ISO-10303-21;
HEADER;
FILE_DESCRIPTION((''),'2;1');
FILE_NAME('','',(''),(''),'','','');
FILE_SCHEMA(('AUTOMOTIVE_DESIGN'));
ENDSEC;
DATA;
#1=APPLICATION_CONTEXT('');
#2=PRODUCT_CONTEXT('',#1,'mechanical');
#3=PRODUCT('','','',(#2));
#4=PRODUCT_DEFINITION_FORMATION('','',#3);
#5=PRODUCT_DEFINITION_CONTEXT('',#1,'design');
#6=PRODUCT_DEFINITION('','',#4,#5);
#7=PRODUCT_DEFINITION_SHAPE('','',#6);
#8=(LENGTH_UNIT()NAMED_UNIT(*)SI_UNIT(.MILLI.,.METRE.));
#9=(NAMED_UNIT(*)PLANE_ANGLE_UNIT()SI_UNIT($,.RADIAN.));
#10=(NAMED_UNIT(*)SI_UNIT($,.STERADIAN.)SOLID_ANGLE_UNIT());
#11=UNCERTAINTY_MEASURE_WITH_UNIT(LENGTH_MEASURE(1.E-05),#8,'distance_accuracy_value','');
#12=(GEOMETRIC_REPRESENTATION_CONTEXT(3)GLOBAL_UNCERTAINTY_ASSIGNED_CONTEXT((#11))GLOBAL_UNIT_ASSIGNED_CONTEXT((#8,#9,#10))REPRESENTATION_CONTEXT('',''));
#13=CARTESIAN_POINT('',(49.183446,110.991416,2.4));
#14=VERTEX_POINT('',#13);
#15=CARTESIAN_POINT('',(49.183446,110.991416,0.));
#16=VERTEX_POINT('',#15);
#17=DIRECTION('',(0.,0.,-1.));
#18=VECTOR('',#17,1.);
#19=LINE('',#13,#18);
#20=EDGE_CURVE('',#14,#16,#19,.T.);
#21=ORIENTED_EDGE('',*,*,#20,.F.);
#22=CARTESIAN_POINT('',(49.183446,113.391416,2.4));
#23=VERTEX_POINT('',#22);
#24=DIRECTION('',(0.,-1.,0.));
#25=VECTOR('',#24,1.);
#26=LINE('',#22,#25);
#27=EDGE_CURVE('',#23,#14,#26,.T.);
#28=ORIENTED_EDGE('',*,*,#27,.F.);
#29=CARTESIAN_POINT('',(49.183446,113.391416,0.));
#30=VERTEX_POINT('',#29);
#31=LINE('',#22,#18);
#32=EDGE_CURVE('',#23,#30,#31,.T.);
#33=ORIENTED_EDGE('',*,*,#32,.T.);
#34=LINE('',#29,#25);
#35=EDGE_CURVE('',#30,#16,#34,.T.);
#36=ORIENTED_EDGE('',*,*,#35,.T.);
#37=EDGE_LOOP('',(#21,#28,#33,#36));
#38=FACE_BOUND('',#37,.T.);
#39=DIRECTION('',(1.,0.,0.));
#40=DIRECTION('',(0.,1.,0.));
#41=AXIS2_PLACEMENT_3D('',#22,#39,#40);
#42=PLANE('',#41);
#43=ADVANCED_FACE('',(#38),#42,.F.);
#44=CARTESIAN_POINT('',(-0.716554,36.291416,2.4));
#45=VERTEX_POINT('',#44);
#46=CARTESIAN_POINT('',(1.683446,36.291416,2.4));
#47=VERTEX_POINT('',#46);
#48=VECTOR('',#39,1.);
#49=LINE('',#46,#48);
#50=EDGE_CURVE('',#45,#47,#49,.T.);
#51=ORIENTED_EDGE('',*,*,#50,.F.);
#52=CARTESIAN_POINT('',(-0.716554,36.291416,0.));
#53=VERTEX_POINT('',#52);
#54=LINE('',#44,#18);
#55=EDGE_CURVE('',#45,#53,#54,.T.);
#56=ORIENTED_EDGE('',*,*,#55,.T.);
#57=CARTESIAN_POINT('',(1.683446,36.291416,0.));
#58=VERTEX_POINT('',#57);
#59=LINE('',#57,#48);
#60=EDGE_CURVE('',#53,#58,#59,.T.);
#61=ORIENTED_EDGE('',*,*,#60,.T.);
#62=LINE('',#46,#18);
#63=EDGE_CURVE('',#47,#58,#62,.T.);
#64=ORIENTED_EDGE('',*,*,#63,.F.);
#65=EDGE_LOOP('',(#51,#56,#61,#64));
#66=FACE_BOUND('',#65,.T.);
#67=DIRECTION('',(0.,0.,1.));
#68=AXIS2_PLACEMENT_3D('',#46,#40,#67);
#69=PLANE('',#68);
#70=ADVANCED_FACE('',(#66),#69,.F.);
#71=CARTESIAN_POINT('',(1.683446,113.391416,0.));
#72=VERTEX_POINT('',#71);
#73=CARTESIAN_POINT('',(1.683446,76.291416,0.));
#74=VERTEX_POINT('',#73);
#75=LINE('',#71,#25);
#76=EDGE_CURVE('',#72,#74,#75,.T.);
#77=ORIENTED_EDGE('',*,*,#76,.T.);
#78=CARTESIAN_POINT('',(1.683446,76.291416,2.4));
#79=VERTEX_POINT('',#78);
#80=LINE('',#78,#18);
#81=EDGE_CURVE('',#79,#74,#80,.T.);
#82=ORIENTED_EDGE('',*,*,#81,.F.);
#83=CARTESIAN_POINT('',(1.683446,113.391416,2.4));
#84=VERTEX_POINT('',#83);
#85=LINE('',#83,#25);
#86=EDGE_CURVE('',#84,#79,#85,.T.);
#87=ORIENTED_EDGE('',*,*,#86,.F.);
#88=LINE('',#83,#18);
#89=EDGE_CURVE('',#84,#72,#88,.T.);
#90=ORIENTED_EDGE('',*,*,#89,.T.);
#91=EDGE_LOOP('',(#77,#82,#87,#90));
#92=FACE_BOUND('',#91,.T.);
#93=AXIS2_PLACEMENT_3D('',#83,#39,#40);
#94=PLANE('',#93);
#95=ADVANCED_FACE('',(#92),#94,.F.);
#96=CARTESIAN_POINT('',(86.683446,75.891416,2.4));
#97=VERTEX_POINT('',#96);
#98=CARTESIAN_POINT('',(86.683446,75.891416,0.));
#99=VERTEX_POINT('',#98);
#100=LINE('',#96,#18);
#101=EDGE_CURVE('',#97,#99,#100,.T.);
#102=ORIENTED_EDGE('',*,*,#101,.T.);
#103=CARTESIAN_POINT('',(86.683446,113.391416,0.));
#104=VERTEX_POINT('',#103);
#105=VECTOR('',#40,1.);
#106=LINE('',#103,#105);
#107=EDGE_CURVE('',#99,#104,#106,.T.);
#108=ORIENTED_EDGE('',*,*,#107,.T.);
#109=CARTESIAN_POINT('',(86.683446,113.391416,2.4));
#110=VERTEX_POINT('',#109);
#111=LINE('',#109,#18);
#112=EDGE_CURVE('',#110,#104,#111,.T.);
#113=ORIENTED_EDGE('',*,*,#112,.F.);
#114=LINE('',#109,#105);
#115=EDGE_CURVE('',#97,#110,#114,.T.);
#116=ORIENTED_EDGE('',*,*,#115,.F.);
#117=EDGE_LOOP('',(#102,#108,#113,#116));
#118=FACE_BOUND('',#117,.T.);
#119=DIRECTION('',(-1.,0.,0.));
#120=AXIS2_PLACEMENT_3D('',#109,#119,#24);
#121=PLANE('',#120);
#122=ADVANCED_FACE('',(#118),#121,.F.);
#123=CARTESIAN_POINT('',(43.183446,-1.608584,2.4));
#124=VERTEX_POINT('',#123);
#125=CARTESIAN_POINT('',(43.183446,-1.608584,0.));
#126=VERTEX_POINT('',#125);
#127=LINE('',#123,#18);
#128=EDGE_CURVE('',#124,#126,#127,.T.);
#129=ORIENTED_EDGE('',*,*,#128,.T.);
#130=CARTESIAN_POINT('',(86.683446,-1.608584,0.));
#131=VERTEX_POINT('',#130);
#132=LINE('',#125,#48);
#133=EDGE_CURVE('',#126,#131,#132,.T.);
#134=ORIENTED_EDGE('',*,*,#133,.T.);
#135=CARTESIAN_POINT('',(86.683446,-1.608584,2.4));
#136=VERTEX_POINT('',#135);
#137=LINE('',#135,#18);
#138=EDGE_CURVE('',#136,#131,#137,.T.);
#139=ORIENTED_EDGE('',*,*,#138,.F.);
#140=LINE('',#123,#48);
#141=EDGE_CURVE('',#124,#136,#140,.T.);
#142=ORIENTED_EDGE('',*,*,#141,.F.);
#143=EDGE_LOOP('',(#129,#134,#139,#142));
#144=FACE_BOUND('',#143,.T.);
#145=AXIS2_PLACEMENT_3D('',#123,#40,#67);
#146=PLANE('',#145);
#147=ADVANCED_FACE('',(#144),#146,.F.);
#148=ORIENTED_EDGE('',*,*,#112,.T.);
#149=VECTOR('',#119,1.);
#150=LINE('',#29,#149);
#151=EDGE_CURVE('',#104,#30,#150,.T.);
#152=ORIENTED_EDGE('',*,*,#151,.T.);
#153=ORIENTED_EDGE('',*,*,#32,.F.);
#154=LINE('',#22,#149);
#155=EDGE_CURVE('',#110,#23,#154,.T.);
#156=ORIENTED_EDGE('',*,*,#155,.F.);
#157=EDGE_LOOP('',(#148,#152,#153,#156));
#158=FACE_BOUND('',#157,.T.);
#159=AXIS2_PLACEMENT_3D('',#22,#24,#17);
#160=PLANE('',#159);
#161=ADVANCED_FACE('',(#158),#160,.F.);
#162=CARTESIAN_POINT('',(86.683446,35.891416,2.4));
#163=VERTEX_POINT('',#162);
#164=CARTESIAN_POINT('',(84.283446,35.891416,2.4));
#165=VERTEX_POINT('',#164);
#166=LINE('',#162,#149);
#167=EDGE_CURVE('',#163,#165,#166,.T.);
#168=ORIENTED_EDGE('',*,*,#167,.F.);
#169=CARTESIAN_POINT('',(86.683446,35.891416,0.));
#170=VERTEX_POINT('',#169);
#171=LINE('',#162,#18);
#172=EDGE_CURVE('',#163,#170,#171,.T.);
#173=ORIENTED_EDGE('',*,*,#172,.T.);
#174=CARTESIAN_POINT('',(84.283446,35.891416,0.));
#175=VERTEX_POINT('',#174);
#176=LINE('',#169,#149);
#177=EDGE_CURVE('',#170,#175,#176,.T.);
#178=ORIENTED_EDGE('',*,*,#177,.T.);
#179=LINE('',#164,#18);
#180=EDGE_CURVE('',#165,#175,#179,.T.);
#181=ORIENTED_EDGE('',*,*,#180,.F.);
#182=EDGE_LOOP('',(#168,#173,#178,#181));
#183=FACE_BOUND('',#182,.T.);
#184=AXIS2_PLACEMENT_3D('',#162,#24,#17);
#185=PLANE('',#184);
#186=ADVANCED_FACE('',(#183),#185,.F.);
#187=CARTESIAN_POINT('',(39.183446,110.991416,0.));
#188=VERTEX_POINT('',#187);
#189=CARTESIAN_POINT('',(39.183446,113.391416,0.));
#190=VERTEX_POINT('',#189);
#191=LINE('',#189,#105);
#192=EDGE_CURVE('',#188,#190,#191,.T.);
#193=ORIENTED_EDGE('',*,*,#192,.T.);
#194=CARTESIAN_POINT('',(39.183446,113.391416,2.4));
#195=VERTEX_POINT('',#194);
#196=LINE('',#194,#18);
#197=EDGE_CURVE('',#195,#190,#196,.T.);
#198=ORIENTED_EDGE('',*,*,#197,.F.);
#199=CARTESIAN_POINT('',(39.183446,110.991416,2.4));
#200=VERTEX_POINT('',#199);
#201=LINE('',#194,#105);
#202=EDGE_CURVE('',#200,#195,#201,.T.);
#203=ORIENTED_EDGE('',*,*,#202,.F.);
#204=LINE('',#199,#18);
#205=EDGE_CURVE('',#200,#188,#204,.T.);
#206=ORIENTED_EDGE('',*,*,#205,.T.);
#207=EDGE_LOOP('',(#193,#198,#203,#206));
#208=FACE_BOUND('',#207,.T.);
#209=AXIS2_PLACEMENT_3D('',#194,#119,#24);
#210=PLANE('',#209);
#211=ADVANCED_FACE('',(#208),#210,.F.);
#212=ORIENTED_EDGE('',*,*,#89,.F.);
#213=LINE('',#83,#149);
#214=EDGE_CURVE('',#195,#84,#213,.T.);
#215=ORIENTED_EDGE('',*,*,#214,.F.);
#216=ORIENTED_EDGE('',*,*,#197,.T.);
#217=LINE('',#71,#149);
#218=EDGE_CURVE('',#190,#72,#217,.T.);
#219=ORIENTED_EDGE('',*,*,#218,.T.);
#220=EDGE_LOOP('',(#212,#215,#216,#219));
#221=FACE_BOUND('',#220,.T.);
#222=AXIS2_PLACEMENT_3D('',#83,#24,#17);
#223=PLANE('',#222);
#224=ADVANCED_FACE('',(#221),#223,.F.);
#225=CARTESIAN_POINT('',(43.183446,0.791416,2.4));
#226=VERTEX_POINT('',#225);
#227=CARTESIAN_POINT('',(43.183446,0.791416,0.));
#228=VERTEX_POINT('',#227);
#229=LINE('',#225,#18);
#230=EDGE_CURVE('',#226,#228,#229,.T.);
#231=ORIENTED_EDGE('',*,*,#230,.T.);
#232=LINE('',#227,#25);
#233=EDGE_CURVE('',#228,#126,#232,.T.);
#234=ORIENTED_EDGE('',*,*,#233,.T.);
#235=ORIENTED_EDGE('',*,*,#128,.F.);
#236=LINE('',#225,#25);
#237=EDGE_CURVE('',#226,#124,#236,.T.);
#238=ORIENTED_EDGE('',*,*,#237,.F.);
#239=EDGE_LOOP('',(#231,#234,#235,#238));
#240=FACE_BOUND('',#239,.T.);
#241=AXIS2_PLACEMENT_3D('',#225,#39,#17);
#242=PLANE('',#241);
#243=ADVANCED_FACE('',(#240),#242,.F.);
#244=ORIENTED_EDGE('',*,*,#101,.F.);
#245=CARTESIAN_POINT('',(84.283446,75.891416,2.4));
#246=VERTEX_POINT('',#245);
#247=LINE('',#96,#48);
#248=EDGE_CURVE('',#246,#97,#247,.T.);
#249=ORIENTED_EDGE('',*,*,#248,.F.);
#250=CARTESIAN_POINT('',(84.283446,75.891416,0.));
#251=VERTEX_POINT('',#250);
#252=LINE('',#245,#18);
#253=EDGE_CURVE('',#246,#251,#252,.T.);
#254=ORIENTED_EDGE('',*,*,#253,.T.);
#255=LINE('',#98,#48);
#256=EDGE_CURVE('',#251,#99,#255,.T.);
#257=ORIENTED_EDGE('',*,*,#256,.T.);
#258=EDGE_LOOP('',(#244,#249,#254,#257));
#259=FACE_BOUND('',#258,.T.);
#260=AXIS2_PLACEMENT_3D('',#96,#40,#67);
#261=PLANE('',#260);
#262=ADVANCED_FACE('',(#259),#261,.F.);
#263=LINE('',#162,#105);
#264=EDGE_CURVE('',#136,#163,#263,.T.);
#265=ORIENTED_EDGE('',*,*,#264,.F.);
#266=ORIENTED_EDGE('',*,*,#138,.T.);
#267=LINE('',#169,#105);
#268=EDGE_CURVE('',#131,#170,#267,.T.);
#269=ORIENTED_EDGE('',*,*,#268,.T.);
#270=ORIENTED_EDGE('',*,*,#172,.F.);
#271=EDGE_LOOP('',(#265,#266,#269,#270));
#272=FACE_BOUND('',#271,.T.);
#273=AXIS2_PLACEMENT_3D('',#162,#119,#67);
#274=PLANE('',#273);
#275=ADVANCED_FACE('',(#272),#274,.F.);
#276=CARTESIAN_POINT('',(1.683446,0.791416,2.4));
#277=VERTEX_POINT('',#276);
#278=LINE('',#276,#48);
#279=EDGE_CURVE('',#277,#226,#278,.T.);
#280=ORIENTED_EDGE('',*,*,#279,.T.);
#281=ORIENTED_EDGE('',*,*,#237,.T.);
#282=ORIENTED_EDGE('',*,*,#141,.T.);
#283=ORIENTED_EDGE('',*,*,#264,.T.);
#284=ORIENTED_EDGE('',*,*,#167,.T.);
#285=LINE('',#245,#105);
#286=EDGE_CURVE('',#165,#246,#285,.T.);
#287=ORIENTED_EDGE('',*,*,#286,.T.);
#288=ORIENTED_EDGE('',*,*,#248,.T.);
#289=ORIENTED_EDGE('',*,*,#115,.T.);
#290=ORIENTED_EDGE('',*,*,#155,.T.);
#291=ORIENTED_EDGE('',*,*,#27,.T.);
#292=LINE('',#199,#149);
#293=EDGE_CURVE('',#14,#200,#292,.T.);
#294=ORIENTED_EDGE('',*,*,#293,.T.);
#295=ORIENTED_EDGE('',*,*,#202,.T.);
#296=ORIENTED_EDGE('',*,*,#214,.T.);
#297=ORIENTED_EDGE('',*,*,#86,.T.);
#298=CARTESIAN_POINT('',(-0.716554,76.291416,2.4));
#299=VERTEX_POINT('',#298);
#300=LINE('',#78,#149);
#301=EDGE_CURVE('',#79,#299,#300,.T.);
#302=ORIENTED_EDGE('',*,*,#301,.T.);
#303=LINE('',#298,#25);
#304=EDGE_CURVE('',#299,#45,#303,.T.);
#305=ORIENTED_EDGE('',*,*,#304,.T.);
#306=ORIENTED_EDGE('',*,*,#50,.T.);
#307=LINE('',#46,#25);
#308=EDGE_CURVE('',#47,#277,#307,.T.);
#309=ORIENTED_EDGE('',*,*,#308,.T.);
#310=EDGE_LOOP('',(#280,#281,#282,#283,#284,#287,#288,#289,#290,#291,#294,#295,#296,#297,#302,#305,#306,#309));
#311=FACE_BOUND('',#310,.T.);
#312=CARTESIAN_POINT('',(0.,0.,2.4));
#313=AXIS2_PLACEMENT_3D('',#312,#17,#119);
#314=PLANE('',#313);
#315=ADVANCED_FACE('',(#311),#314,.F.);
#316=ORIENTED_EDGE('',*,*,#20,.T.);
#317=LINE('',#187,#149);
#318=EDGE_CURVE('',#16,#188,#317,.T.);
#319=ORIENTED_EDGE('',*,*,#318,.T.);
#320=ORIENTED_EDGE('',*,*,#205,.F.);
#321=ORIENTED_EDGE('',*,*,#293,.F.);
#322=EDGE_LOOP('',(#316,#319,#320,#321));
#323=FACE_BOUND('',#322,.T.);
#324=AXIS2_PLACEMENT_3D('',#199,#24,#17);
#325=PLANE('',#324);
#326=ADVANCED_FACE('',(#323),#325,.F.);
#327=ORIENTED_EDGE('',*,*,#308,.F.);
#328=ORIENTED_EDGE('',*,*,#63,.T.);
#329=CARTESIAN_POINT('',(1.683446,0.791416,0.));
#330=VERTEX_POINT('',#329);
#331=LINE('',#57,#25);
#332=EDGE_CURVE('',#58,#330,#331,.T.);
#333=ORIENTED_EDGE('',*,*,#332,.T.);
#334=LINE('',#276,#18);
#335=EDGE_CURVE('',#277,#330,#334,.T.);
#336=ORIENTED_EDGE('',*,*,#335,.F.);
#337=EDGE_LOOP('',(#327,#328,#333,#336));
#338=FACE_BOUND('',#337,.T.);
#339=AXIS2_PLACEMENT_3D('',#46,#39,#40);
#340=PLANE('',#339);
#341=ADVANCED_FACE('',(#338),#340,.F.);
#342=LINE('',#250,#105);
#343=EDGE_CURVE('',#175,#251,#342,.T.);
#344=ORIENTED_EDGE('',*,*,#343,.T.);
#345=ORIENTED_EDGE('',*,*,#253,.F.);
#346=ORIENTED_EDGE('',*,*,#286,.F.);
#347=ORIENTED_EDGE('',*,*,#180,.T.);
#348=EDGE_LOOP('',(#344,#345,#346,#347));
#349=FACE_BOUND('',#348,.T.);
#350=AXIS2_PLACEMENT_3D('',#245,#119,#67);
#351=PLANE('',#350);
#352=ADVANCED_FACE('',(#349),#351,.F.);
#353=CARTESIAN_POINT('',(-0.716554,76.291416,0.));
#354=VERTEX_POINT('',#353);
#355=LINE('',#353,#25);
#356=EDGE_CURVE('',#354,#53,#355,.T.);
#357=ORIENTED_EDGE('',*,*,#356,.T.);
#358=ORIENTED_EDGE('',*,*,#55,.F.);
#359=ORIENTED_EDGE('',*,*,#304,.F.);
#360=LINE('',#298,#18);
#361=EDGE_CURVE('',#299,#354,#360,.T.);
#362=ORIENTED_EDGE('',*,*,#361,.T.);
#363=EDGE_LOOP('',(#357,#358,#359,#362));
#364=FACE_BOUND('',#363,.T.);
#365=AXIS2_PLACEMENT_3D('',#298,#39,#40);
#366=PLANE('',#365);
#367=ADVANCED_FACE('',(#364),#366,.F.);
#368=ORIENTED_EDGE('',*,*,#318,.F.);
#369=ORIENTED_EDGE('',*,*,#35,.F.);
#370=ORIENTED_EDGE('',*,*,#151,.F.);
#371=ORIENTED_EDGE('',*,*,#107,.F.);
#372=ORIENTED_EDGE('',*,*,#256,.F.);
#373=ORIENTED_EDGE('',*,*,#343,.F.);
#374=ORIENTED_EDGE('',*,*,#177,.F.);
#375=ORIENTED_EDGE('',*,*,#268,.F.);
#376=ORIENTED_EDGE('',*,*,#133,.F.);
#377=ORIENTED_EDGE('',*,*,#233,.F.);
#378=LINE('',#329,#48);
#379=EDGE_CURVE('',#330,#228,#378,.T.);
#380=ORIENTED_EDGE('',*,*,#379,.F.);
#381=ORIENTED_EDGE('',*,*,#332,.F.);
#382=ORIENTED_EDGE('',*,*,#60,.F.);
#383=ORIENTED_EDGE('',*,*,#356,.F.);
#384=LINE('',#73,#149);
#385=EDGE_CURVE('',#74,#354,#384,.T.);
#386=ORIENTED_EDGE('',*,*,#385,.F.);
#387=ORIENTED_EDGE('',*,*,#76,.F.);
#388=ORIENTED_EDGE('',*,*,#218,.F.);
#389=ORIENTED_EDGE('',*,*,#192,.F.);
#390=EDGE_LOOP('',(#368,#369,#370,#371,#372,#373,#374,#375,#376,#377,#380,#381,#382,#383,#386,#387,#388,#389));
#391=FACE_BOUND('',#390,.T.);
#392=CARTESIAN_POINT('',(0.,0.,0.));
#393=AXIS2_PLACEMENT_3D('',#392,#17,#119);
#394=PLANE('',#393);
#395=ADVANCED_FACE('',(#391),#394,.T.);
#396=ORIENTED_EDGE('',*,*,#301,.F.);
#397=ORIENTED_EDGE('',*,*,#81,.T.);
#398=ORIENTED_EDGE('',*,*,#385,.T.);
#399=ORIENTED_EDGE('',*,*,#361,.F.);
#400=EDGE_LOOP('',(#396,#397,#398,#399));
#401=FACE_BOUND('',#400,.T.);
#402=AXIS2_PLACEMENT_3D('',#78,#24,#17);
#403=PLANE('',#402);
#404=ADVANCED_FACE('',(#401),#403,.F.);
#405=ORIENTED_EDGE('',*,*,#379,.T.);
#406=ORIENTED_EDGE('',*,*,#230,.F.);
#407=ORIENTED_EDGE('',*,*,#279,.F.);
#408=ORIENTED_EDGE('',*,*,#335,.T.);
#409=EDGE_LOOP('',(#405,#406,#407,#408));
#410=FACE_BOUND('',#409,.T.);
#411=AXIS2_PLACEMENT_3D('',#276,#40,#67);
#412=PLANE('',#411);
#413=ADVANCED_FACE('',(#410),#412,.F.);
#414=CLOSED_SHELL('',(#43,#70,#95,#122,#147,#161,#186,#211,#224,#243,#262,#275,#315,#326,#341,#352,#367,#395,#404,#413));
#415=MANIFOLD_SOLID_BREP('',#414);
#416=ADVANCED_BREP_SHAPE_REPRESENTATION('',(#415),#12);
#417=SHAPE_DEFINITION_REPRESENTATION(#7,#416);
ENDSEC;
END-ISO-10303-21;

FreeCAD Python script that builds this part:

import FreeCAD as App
import Part
import Sketcher

doc = App.newDocument("Part")
params = doc.addObject("Spreadsheet::Sheet", "Params")
for row, (alias, value) in enumerate([
    ("sketch1_width", "10 mm"),
    ("sketch1_height", "40 mm"),
    ("sketch1_width2", "41.5 mm"),
    ("sketch1_width3", "43.5 mm"),
    ("sketch1_width4", "2.4 mm"),
    ("pad1_length", "2.4 mm"),
], start=1):
    params.set(f"A{row}", alias)
    params.set(f"B{row}", "=" + value)
    params.setAlias(f"B{row}", alias)

body = doc.addObject("PartDesign::Body", "Body")

# Sketch on XY plane
sketch1 = doc.addObject("Sketcher::SketchObject", "Sketch")
body.addObject(sketch1)
sketch1.AttachmentSupport = (doc.XY_Plane, [""])
sketch1.MapMode = "FlatFace"
sketch1.addGeometry(Part.LineSegment(App.Vector(1.7, 36.3, 0), App.Vector(1.7, 0.8, 0)), False)
sketch1.addGeometry(Part.LineSegment(App.Vector(1.7, 0.8, 0), App.Vector(43.2, 0.8, 0)), False)
sketch1.addGeometry(Part.LineSegment(App.Vector(43.2, 0.8, 0), App.Vector(43.2, -1.6, 0)), False)
sketch1.addGeometry(Part.LineSegment(App.Vector(43.2, -1.6, 0), App.Vector(86.7, -1.6, 0)), False)
sketch1.addGeometry(Part.LineSegment(App.Vector(86.7, -1.6, 0), App.Vector(86.7, 35.9, 0)), False)
sketch1.addGeometry(Part.LineSegment(App.Vector(86.7, 35.9, 0), App.Vector(84.3, 35.9, 0)), False)
sketch1.addGeometry(Part.LineSegment(App.Vector(84.3, 35.9, 0), App.Vector(84.3, 75.9, 0)), False)
sketch1.addGeometry(Part.LineSegment(App.Vector(84.3, 75.9, 0), App.Vector(86.7, 75.9, 0)), False)
sketch1.addGeometry(Part.LineSegment(App.Vector(86.7, 75.9, 0), App.Vector(86.7, 113.4, 0)), False)
sketch1.addGeometry(Part.LineSegment(App.Vector(86.7, 113.4, 0), App.Vector(49.2, 113.4, 0)), False)
sketch1.addGeometry(Part.LineSegment(App.Vector(49.2, 113.4, 0), App.Vector(49.2, 111, 0)), False)
sketch1.addGeometry(Part.LineSegment(App.Vector(49.2, 111, 0), App.Vector(39.2, 111, 0)), False)
sketch1.addGeometry(Part.LineSegment(App.Vector(39.2, 111, 0), App.Vector(39.2, 113.4, 0)), False)
sketch1.addGeometry(Part.LineSegment(App.Vector(39.2, 113.4, 0), App.Vector(1.7, 113.4, 0)), False)
sketch1.addGeometry(Part.LineSegment(App.Vector(1.7, 113.4, 0), App.Vector(1.7, 76.3, 0)), False)
sketch1.addGeometry(Part.LineSegment(App.Vector(1.7, 76.3, 0), App.Vector(-0.7, 76.3, 0)), False)
sketch1.addGeometry(Part.LineSegment(App.Vector(-0.7, 76.3, 0), App.Vector(-0.7, 36.3, 0)), False)
sketch1.addGeometry(Part.LineSegment(App.Vector(-0.7, 36.3, 0), App.Vector(1.7, 36.3, 0)), False)
sketch1.addConstraint(Sketcher.Constraint("Coincident", 0, 2, 1, 1))
sketch1.addConstraint(Sketcher.Constraint("Coincident", 1, 2, 2, 1))
sketch1.addConstraint(Sketcher.Constraint("Coincident", 2, 2, 3, 1))
sketch1.addConstraint(Sketcher.Constraint("Coincident", 3, 2, 4, 1))
sketch1.addConstraint(Sketcher.Constraint("Coincident", 4, 2, 5, 1))
sketch1.addConstraint(Sketcher.Constraint("Coincident", 5, 2, 6, 1))
sketch1.addConstraint(Sketcher.Constraint("Coincident", 6, 2, 7, 1))
sketch1.addConstraint(Sketcher.Constraint("Coincident", 7, 2, 8, 1))
sketch1.addConstraint(Sketcher.Constraint("Coincident", 8, 2, 9, 1))
sketch1.addConstraint(Sketcher.Constraint("Coincident", 9, 2, 10, 1))
sketch1.addConstraint(Sketcher.Constraint("Coincident", 10, 2, 11, 1))
sketch1.addConstraint(Sketcher.Constraint("Coincident", 11, 2, 12, 1))
sketch1.addConstraint(Sketcher.Constraint("Coincident", 12, 2, 13, 1))
sketch1.addConstraint(Sketcher.Constraint("Coincident", 13, 2, 14, 1))
sketch1.addConstraint(Sketcher.Constraint("Coincident", 14, 2, 15, 1))
sketch1.addConstraint(Sketcher.Constraint("Coincident", 15, 2, 16, 1))
sketch1.addConstraint(Sketcher.Constraint("Coincident", 16, 2, 17, 1))
sketch1.addConstraint(Sketcher.Constraint("Coincident", 17, 2, 0, 1))
sketch1.addConstraint(Sketcher.Constraint("Vertical", 0))
sketch1.addConstraint(Sketcher.Constraint("Horizontal", 1))
sketch1.addConstraint(Sketcher.Constraint("Vertical", 2))
sketch1.addConstraint(Sketcher.Constraint("Horizontal", 3))
sketch1.addConstraint(Sketcher.Constraint("Vertical", 4))
sketch1.addConstraint(Sketcher.Constraint("Horizontal", 5))
sketch1.addConstraint(Sketcher.Constraint("Vertical", 6))
sketch1.addConstraint(Sketcher.Constraint("Horizontal", 7))
sketch1.addConstraint(Sketcher.Constraint("Vertical", 8))
sketch1.addConstraint(Sketcher.Constraint("Horizontal", 9))
sketch1.addConstraint(Sketcher.Constraint("Vertical", 10))
sketch1.addConstraint(Sketcher.Constraint("Horizontal", 11))
sketch1.addConstraint(Sketcher.Constraint("Vertical", 12))
sketch1.addConstraint(Sketcher.Constraint("Horizontal", 13))
sketch1.addConstraint(Sketcher.Constraint("Vertical", 14))
sketch1.addConstraint(Sketcher.Constraint("Horizontal", 15))
sketch1.addConstraint(Sketcher.Constraint("Vertical", 16))
sketch1.addConstraint(Sketcher.Constraint("Horizontal", 17))
sketch1.addConstraint(Sketcher.Constraint("Horizontal", 9, 2, 12, 2))
sketch1.addConstraint(Sketcher.Constraint("Vertical", 4, 2, 7, 2))
sketch1.addConstraint(Sketcher.Constraint("Vertical", 0, 2, 13, 2))
sketch1.addConstraint(Sketcher.Constraint("Equal", 9, 13))
sketch1.addConstraint(Sketcher.Constraint("Equal", 7, 15))
sketch1.addConstraint(Sketcher.Constraint("Equal", 17, 2))
sketch1.addConstraint(Sketcher.Constraint("Equal", 13, 4))
sketch1.addConstraint(Sketcher.Constraint("Equal", 4, 8))
sketch1.addConstraint(Sketcher.Constraint("Equal", 2, 10))
sketch1.addConstraint(Sketcher.Constraint("Equal", 6, 16))
sketch1.addConstraint(Sketcher.Constraint("DistanceX", 11, 2, 11, 1, 10.0))
sketch1.addConstraint(Sketcher.Constraint("DistanceY", 6, 1, 6, 2, 40.0))
sketch1.addConstraint(Sketcher.Constraint("DistanceX", 1, 1, 1, 2, 41.5))
sketch1.addConstraint(Sketcher.Constraint("DistanceX", 3, 1, 3, 2, 43.5))
sketch1.addConstraint(Sketcher.Constraint("DistanceX", 5, 2, 5, 1, 2.4))
sketch1.addConstraint(Sketcher.Constraint("DistanceY", 0, 2, 0, 1, 35.5))
sketch1.addConstraint(Sketcher.Constraint("DistanceX", -1, 1, 0, 2, 1.683446))
sketch1.addConstraint(Sketcher.Constraint("DistanceY", -1, 1, 0, 2, 0.791416))
sketch1.setExpression("Constraints[46]", "Params.sketch1_width")
sketch1.setExpression("Constraints[47]", "Params.sketch1_height")
sketch1.setExpression("Constraints[48]", "Params.sketch1_width2")
sketch1.setExpression("Constraints[49]", "Params.sketch1_width3")
sketch1.setExpression("Constraints[50]", "Params.sketch1_width4")
pad1 = doc.addObject("PartDesign::Pad", "Pad")
body.addObject(pad1)
pad1.Profile = sketch1
pad1.setExpression("Length", "Params.pad1_length")

doc.recompute()
